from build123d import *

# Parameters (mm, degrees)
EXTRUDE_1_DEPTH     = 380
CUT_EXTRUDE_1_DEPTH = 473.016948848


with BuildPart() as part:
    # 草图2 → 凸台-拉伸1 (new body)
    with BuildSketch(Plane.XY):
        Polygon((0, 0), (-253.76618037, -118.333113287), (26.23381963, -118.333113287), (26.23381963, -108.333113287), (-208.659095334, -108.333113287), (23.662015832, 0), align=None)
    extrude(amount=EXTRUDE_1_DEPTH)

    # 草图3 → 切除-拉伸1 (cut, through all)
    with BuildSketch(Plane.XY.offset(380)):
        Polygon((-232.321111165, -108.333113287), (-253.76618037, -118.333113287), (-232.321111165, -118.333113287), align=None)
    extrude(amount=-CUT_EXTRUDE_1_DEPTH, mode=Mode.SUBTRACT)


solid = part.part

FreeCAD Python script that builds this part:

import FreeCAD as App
import Part
import Sketcher
Q = App.Units.Quantity

doc = App.newDocument("Part")
body = doc.addObject("PartDesign::Body", "Body")

sketch1 = body.newObject("Sketcher::SketchObject", "Sketch")
sketch1.AttachmentSupport = (doc.getObject("XY_Plane"), [""])
sketch1.MapMode = "FlatFace"
sketch1.addGeometry([
    Part.LineSegment(App.Vector(0, 0, 0), App.Vector(-253.76618, -118.333113, 0)),
    Part.LineSegment(App.Vector(-253.76618, -118.333113, 0), App.Vector(26.23382, -118.333113, 0)),
    Part.LineSegment(App.Vector(26.23382, -118.333113, 0), App.Vector(26.23382, -108.333113, 0)),
    Part.LineSegment(App.Vector(26.23382, -108.333113, 0), App.Vector(-208.659095, -108.333113, 0)),
    Part.LineSegment(App.Vector(-208.659095, -108.333113, 0), App.Vector(23.662016, 0, 0)),
    Part.LineSegment(App.Vector(23.662016, 0, 0), App.Vector(0, 0, 0)),
], False)
sketch1.addConstraint([
    Sketcher.Constraint("Coincident", 0, 2, 1, 1),
    Sketcher.Constraint("Coincident", 1, 2, 2, 1),
    Sketcher.Constraint("Coincident", 2, 2, 3, 1),
    Sketcher.Constraint("Coincident", 3, 2, 4, 1),
    Sketcher.Constraint("Coincident", 4, 2, 5, 1),
    Sketcher.Constraint("Coincident", 5, 2, 0, 1),
    Sketcher.Constraint("Horizontal", 1),
    Sketcher.Constraint("Vertical", 2),
    Sketcher.Constraint("Horizontal", 3),
    Sketcher.Constraint("Horizontal", 5),
    Sketcher.Constraint("Coincident", 5, 2, -1, 1),
    Sketcher.Constraint("Parallel", 0, 4),
    Sketcher.Constraint("DistanceX", 1, 1, 1, 2, 280.0),
    Sketcher.Constraint("DistanceY", 2, 1, 2, 2, 10.0),
    Sketcher.Constraint("Angle", 0, Q("-155 deg")),
    Sketcher.Constraint("Distance", 0, 280.0),
    Sketcher.Constraint("DistanceX", 3, 2, 3, 1, 234.892915),
])
pad1 = body.newObject("PartDesign::Pad", "Pad")
pad1.Profile = sketch1
pad1.Length = 380

sketch2 = body.newObject("Sketcher::SketchObject", "Sketch001")
sketch2.AttachmentSupport = (doc.getObject("XY_Plane"), [""])
sketch2.MapMode = "FlatFace"
sketch2.AttachmentOffset = App.Placement(App.Vector(0, 0, 380), App.Rotation())
sketch2.addGeometry([
    Part.LineSegment(App.Vector(-232.321111, -108.333113, 0), App.Vector(-253.76618, -118.333113, 0)),
    Part.LineSegment(App.Vector(-253.76618, -118.333113, 0), App.Vector(-232.321111, -118.333113, 0)),
    Part.LineSegment(App.Vector(-232.321111, -118.333113, 0), App.Vector(-232.321111, -108.333113, 0)),
], False)
sketch2.addConstraint([
    Sketcher.Constraint("Coincident", 0, 2, 1, 1),
    Sketcher.Constraint("Coincident", 1, 2, 2, 1),
    Sketcher.Constraint("Coincident", 2, 2, 0, 1),
    Sketcher.Constraint("Horizontal", 1),
    Sketcher.Constraint("Vertical", 2),
    Sketcher.Constraint("DistanceY", 2, 1, 2, 2, 10.0),
    Sketcher.Constraint("Angle", 0, Q("-155 deg")),
    Sketcher.Constraint("DistanceX", 0, 2, -1, 1, 253.76618),
    Sketcher.Constraint("DistanceY", 0, 2, -1, 1, 118.333113),
])
pocket1 = body.newObject("PartDesign::Pocket", "Pocket")
pocket1.Profile = sketch2
pocket1.Type = "ThroughAll"

doc.recompute()
